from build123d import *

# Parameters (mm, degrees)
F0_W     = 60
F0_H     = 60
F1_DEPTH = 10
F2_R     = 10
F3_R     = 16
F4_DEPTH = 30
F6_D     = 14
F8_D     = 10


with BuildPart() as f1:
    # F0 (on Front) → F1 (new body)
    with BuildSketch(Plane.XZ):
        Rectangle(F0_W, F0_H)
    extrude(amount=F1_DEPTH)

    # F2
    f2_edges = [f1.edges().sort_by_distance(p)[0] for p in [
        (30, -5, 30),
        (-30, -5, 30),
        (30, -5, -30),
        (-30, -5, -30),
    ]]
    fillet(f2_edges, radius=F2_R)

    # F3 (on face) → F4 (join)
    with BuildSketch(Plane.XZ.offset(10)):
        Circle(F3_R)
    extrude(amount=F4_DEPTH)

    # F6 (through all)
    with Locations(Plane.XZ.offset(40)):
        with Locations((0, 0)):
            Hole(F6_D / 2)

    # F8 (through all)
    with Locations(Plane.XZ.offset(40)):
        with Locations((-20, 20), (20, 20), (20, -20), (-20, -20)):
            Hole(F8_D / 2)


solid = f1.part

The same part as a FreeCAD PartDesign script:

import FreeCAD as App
import Part
import Sketcher

V = App.Vector


def edges_at(feature, points):
    """Names of the edges that pass closest to the given points."""
    edges = feature.Shape.Edges
    near = lambda p: min(range(len(edges)), key=lambda i: edges[i].distToShape(Part.Vertex(*p))[0])
    return sorted({f"Edge{near(p) + 1}" for p in points})


def add_polygon(sketch, points):
    """Adds a closed chain of lines whose ends are joined by coincident constraints."""
    first, n = sketch.GeometryCount, len(points)
    for a, b in zip(points, points[1:] + points[:1]):
        sketch.addGeometry(Part.LineSegment(App.Vector(*a, 0), App.Vector(*b, 0)), False)
    for i in range(n):
        sketch.addConstraint(Sketcher.Constraint("Coincident", first + i, 2, first + (i + 1) % n, 1))

doc = App.newDocument("Part")
body = doc.addObject("PartDesign::Body", "Body")

# Sketch on XZ plane
sketch1 = body.newObject("Sketcher::SketchObject", "Sketch")
sketch1.AttachmentSupport = (doc.getObject("XZ_Plane"), [""])
sketch1.MapMode = "FlatFace"
add_polygon(sketch1, [(-30, 30), (-30, -30), (30, -30), (30, 30)])  # lines 0-3
sketch1.addConstraint([
    Sketcher.Constraint("Vertical", 0),
    Sketcher.Constraint("Horizontal", 1),
    Sketcher.Constraint("Vertical", 2),
    Sketcher.Constraint("Horizontal", 3),
    Sketcher.Constraint("Symmetric", 0, 2, 2, 2, -1, 1),
    Sketcher.Constraint("Equal", 3, 0),
    Sketcher.Constraint("DistanceX", 1, 1, 1, 2, 60.0),
])
pad1 = body.newObject("PartDesign::Pad", "Pad")
pad1.Profile = sketch1
pad1.Length = 10
doc.recompute()

fillet = body.newObject("PartDesign::Fillet", "Fillet")
fillet.Base = (pad1, edges_at(pad1, [
    (30, -5, 30),
    (-30, -5, 30),
    (30, -5, -30),
    (-30, -5, -30),
]))
fillet.Radius = 10

# Sketch on XZ plane
sketch2 = body.newObject("Sketcher::SketchObject", "Sketch001")
sketch2.AttachmentSupport = (doc.getObject("XZ_Plane"), [""])
sketch2.MapMode = "FlatFace"
sketch2.AttachmentOffset = App.Placement(V(0, 0, 10), App.Rotation())
sketch2.addGeometry(Part.Circle(V(0, 0, 0), V(0, 0, 1), 16), False)
sketch2.addConstraint([
    Sketcher.Constraint("Coincident", 0, 3, -1, 1),
    Sketcher.Constraint("Diameter", 0, 32.0),
])
pad2 = body.newObject("PartDesign::Pad", "Pad001")
pad2.Profile = sketch2
pad2.Length = 30

# Sketch on XZ plane
sketch3 = body.newObject("Sketcher::SketchObject", "Sketch002")
sketch3.AttachmentSupport = (doc.getObject("XZ_Plane"), [""])
sketch3.MapMode = "FlatFace"
sketch3.AttachmentOffset = App.Placement(V(0, 0, 40), App.Rotation())
sketch3.addGeometry(Part.Circle(V(0, 0, 0), V(0, 0, 1), 7), False)
sketch3.addConstraint([
    Sketcher.Constraint("Coincident", 0, 3, -1, 1),
    Sketcher.Constraint("Diameter", 0, 14.0),
])
doc.recompute()
hole = body.newObject("PartDesign::Hole", "Hole")
hole.Profile = sketch3
hole.ThreadType = "None"
hole.Diameter = 14
hole.DepthType = "ThroughAll"

# Sketch on XZ plane
sketch4 = body.newObject("Sketcher::SketchObject", "Sketch003")
sketch4.AttachmentSupport = (doc.getObject("XZ_Plane"), [""])
sketch4.MapMode = "FlatFace"
sketch4.AttachmentOffset = App.Placement(V(0, 0, 40), App.Rotation())
sketch4.addGeometry([
    Part.Circle(V(-20, 20, 0), V(0, 0, 1), 5),
    Part.Circle(V(20, 20, 0), V(0, 0, 1), 5),
    Part.Circle(V(20, -20, 0), V(0, 0, 1), 5),
    Part.Circle(V(-20, -20, 0), V(0, 0, 1), 5),
], False)
sketch4.addConstraint([
    Sketcher.Constraint("Equal", 0, 1),
    Sketcher.Constraint("Equal", 1, 2),
    Sketcher.Constraint("Equal", 2, 3),
    Sketcher.Constraint("Symmetric", 0, 3, 2, 3, -1, 1),
    Sketcher.Constraint("Symmetric", 1, 3, 3, 3, -1, 1),
    Sketcher.Constraint("Symmetric", 0, 3, 1, 3, -2),
    Sketcher.Constraint("Diameter", 0, 10.0),
    Sketcher.Constraint("DistanceX", 0, 3, -1, 1, 20.0),
    Sketcher.Constraint("DistanceY", -1, 1, 0, 3, 20.0),
])
doc.recompute()
hole2 = body.newObject("PartDesign::Hole", "Hole001")
hole2.Profile = sketch4
hole2.ThreadType = "None"
hole2.Diameter = 10
hole2.DepthType = "ThroughAll"

doc.recompute()
